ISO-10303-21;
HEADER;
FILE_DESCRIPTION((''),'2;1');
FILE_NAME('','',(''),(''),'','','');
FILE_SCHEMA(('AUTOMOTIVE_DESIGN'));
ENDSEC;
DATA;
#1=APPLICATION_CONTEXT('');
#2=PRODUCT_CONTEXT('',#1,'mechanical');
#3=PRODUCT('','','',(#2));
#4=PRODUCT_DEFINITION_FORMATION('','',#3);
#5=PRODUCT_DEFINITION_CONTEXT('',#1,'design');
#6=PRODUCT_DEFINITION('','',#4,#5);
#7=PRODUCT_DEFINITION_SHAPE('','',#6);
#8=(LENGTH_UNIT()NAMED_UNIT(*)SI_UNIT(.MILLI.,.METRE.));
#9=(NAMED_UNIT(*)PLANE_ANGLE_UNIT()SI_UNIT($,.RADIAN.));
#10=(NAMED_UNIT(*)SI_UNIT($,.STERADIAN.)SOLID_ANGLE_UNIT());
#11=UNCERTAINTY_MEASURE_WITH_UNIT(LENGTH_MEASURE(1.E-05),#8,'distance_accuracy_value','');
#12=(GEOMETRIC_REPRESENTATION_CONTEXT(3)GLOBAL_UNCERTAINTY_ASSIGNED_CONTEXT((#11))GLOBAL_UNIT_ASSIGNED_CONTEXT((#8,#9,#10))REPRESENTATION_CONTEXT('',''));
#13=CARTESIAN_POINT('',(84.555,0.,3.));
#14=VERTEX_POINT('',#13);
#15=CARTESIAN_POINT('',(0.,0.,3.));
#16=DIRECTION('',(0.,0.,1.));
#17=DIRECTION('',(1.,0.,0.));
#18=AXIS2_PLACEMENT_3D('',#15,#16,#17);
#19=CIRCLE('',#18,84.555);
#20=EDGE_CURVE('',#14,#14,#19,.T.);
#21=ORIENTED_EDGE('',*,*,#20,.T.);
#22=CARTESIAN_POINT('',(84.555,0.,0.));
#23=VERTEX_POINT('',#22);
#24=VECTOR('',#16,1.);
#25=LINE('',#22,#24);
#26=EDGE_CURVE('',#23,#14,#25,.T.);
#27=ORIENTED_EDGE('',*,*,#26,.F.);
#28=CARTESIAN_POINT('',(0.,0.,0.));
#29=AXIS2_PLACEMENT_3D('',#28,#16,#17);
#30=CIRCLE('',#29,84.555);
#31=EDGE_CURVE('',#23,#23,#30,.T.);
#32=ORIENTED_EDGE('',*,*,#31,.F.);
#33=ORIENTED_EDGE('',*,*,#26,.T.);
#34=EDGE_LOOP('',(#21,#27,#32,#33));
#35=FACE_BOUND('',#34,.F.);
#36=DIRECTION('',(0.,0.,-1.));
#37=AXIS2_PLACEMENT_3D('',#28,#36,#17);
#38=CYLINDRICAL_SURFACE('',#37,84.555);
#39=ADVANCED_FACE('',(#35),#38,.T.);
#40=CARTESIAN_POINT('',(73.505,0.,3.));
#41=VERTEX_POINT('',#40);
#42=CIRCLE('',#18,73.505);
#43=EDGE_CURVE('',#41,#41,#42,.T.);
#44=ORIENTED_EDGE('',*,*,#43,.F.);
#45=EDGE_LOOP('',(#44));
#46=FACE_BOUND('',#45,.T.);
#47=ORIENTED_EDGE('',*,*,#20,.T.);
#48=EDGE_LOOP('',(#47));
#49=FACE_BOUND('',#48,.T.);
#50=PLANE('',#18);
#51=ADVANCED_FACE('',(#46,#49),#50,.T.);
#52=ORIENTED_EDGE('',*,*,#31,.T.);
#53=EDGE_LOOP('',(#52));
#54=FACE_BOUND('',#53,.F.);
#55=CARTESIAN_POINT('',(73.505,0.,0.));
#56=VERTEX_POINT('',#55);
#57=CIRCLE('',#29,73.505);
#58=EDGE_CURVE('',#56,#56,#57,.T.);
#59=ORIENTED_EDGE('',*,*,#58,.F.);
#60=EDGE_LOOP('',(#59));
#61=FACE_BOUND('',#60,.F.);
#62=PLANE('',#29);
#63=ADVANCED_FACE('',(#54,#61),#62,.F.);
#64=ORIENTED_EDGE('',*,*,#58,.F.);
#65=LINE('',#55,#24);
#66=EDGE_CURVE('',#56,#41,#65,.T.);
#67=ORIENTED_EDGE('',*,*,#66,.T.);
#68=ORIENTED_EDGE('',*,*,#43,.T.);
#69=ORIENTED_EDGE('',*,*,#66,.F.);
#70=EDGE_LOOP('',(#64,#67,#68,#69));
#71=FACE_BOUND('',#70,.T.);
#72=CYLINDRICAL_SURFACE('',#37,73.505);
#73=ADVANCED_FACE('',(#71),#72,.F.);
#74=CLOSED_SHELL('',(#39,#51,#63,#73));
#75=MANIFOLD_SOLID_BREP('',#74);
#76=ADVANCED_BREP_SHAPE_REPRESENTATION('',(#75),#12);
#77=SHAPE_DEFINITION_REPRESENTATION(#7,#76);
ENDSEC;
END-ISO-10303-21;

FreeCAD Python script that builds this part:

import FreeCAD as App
import Part
import Sketcher

V = App.Vector
Q = App.Units.Quantity

doc = App.newDocument("Part")
body = doc.addObject("PartDesign::Body", "Body")

sketch1 = body.newObject("Sketcher::SketchObject", "Sketch")
sketch1.AttachmentSupport = (doc.getObject("XY_Plane"), [""])
sketch1.MapMode = "FlatFace"
sketch1.addGeometry(Part.Circle(V(0, 0, 0), V(0, 0, 1), 84.555), False)
sketch1.addGeometry(Part.Circle(V(0, 0, 0), V(0, 0, 1), 73.505), False)
sketch1.addConstraint(Sketcher.Constraint("Coincident", 0, 3, -1, 1))
sketch1.addConstraint(Sketcher.Constraint("Coincident", 1, 3, -1, 1))
sketch1.addConstraint(Sketcher.Constraint("Diameter", 0, Q("169.11 mm")))
sketch1.addConstraint(Sketcher.Constraint("Diameter", 1, Q("147.01 mm")))
pad1 = body.newObject("PartDesign::Pad", "Pad")
pad1.Profile = sketch1
pad1.Length = 3

doc.recompute()
